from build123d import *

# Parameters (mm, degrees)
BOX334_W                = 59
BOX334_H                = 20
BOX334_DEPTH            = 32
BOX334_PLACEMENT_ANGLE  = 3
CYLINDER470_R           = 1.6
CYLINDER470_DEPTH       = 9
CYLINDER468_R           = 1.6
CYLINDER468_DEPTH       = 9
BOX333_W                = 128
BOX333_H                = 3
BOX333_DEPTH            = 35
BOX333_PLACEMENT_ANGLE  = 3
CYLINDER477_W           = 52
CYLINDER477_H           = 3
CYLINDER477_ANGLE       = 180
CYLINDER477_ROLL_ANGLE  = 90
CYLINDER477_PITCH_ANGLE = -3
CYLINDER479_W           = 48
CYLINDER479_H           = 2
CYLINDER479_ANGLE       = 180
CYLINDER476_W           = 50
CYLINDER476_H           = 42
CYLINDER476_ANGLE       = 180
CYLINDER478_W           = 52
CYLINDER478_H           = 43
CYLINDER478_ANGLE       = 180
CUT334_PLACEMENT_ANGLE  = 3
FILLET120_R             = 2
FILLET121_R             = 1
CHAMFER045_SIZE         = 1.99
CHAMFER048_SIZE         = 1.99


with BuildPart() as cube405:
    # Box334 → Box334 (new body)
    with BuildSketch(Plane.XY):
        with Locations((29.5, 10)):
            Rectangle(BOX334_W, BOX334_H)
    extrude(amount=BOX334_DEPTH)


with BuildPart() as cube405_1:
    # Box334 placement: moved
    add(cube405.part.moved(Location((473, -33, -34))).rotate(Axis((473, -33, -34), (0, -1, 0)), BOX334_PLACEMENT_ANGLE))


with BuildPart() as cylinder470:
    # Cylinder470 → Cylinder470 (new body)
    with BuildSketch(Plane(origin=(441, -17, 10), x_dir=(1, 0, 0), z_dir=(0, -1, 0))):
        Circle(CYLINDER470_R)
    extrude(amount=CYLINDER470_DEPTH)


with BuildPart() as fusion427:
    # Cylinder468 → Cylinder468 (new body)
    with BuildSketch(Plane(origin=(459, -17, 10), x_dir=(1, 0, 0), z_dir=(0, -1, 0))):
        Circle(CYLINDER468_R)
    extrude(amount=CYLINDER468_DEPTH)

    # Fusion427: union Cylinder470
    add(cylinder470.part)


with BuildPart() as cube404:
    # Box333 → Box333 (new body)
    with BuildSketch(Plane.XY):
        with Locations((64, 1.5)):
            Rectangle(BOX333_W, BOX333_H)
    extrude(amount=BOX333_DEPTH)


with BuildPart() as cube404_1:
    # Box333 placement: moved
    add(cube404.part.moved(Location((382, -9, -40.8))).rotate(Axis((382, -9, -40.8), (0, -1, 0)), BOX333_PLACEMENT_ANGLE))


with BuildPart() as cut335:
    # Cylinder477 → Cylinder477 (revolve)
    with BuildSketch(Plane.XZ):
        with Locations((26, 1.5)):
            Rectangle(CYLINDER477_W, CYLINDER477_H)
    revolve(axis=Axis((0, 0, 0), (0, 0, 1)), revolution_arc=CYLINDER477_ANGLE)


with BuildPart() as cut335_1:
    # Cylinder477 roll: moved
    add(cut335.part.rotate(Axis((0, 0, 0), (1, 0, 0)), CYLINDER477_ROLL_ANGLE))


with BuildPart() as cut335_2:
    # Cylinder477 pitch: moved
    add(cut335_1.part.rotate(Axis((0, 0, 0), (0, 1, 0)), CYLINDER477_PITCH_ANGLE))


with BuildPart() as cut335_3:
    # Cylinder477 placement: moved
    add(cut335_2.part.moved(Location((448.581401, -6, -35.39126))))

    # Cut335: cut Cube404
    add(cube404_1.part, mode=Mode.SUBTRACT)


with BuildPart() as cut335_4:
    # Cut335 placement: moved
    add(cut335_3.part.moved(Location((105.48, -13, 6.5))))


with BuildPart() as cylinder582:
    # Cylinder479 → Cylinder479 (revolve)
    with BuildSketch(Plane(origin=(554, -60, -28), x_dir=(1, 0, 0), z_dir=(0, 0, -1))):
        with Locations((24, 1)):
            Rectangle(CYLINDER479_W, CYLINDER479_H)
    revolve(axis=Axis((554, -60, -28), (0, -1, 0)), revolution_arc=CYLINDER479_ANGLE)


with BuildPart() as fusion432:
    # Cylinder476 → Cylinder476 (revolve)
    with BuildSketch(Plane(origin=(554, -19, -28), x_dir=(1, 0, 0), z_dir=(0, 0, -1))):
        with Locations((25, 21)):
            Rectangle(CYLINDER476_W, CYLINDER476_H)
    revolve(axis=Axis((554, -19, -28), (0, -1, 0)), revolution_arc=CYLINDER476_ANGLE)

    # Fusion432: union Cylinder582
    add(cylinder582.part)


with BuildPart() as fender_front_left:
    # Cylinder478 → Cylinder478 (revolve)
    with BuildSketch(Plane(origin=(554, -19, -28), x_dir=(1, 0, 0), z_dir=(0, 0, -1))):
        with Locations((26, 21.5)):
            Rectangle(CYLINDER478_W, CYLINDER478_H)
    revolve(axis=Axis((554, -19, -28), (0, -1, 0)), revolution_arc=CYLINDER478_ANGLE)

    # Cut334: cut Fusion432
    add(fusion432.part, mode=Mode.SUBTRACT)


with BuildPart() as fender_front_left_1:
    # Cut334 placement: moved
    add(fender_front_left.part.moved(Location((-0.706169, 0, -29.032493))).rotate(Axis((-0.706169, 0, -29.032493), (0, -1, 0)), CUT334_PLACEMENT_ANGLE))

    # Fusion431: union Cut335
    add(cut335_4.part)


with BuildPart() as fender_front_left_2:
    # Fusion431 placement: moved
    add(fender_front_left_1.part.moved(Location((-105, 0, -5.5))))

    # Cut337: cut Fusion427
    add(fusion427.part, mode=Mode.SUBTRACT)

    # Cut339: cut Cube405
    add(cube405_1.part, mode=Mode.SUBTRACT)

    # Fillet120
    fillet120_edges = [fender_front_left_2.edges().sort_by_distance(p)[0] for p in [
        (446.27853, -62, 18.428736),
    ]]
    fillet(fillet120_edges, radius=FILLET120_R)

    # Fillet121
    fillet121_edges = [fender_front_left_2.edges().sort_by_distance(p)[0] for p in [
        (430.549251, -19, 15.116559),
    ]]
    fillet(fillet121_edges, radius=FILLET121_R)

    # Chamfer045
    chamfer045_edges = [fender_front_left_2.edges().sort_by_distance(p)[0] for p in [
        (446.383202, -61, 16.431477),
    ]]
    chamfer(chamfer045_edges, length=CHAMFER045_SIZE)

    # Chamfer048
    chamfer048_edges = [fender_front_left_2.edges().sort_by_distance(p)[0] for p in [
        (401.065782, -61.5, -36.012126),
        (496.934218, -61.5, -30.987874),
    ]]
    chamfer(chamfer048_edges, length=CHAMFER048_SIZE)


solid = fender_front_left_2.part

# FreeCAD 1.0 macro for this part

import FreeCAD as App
import Part
import Sketcher

V = App.Vector
Q = App.Units.Quantity


def edges_at(feature, points):
    """Names of the edges that pass closest to the given points."""
    edges = feature.Shape.Edges
    near = lambda p: min(range(len(edges)), key=lambda i: edges[i].distToShape(Part.Vertex(*p))[0])
    return sorted({f"Edge{near(p) + 1}" for p in points})


def add_polygon(sketch, points):
    """Adds a closed chain of lines whose ends are joined by coincident constraints."""
    first, n = sketch.GeometryCount, len(points)
    for a, b in zip(points, points[1:] + points[:1]):
        sketch.addGeometry(Part.LineSegment(App.Vector(*a, 0), App.Vector(*b, 0)), False)
    for i in range(n):
        sketch.addConstraint(Sketcher.Constraint("Coincident", first + i, 2, first + (i + 1) % n, 1))

doc = App.newDocument("Part")
body = doc.addObject("PartDesign::Body", "Body")

# Sketch on XY plane
sketch1 = body.newObject("Sketcher::SketchObject", "Sketch")
sketch1.AttachmentSupport = (doc.getObject("XY_Plane"), [""])
sketch1.MapMode = "FlatFace"
add_polygon(sketch1, [(0, 20), (0, 0), (59, 0), (59, 20)])  # lines 0-3
sketch1.addConstraint([
    Sketcher.Constraint("Vertical", 0),
    Sketcher.Constraint("Horizontal", 1),
    Sketcher.Constraint("Vertical", 2),
    Sketcher.Constraint("Horizontal", 3),
    Sketcher.Constraint("Coincident", 0, 2, -1, 1),
    Sketcher.Constraint("DistanceX", 1, 1, 1, 2, Q("59 mm")),
    Sketcher.Constraint("DistanceY", 0, 2, 0, 1, Q("20 mm")),
])
pad1 = body.newObject("PartDesign::Pad", "Pad")
pad1.Profile = sketch1
pad1.Length = 32
body2 = doc.addObject("PartDesign::Body", "Body001")
doc.recompute()

body.Placement = App.Placement(V(473, -33, -34), App.Rotation(V(0, -1, 0), 3))
boolean = body2.newObject("PartDesign::Boolean", "Boolean")
boolean.Type = "Fuse"
boolean.addObjects([body])
body3 = doc.addObject("PartDesign::Body", "Body002")

# Sketch on XZ plane
sketch2 = body3.newObject("Sketcher::SketchObject", "Sketch001")
sketch2.AttachmentSupport = (doc.getObject("XZ_Plane002"), [""])
sketch2.MapMode = "FlatFace"
sketch2.AttachmentOffset = App.Placement(V(0, 0, 17), App.Rotation())
sketch2.addGeometry(Part.Circle(V(441, 10, 0), V(0, 0, 1), 1.6), False)
sketch2.addConstraint([
    Sketcher.Constraint("Diameter", 0, Q("3.2 mm")),
    Sketcher.Constraint("DistanceX", -1, 1, 0, 3, Q("441 mm")),
    Sketcher.Constraint("DistanceY", -1, 1, 0, 3, Q("10 mm")),
])
pad2 = body3.newObject("PartDesign::Pad", "Pad001")
pad2.Profile = sketch2
pad2.Length = 9
body4 = doc.addObject("PartDesign::Body", "Body003")
body4.AllowCompound = True

# Sketch on XZ plane
sketch3 = body4.newObject("Sketcher::SketchObject", "Sketch002")
sketch3.AttachmentSupport = (doc.getObject("XZ_Plane003"), [""])
sketch3.MapMode = "FlatFace"
sketch3.AttachmentOffset = App.Placement(V(0, 0, 17), App.Rotation())
sketch3.addGeometry(Part.Circle(V(459, 10, 0), V(0, 0, 1), 1.6), False)
sketch3.addConstraint([
    Sketcher.Constraint("Diameter", 0, Q("3.2 mm")),
    Sketcher.Constraint("DistanceX", -1, 1, 0, 3, Q("459 mm")),
    Sketcher.Constraint("DistanceY", -1, 1, 0, 3, Q("10 mm")),
])
pad3 = body4.newObject("PartDesign::Pad", "Pad002")
pad3.Profile = sketch3
pad3.Length = 9
doc.recompute()

boolean2 = body4.newObject("PartDesign::Boolean", "Boolean001")
boolean2.Type = "Fuse"
boolean2.addObjects([body3])
body5 = doc.addObject("PartDesign::Body", "Body004")

# Sketch on XY plane
sketch4 = body5.newObject("Sketcher::SketchObject", "Sketch003")
sketch4.AttachmentSupport = (doc.getObject("XY_Plane004"), [""])
sketch4.MapMode = "FlatFace"
add_polygon(sketch4, [(0, 3), (0, 0), (128, 0), (128, 3)])  # lines 0-3
sketch4.addConstraint([
    Sketcher.Constraint("Vertical", 0),
    Sketcher.Constraint("Horizontal", 1),
    Sketcher.Constraint("Vertical", 2),
    Sketcher.Constraint("Horizontal", 3),
    Sketcher.Constraint("Coincident", 0, 2, -1, 1),
    Sketcher.Constraint("DistanceX", 1, 1, 1, 2, Q("128 mm")),
    Sketcher.Constraint("DistanceY", 0, 2, 0, 1, Q("3 mm")),
])
pad4 = body5.newObject("PartDesign::Pad", "Pad003")
pad4.Profile = sketch4
pad4.Length = 35
body6 = doc.addObject("PartDesign::Body", "Body005")
doc.recompute()

body5.Placement = App.Placement(V(382, -9, -40.8), App.Rotation(V(0, -1, 0), 3))
boolean3 = body6.newObject("PartDesign::Boolean", "Boolean002")
boolean3.Type = "Fuse"
boolean3.addObjects([body5])
body7 = doc.addObject("PartDesign::Body", "Body006")

# Sketch on XZ plane
sketch5 = body7.newObject("Sketcher::SketchObject", "Sketch004")
sketch5.AttachmentSupport = (doc.getObject("XZ_Plane006"), [""])
sketch5.MapMode = "FlatFace"
add_polygon(sketch5, [(0, 3), (0, 0), (52, 0), (52, 3)])  # lines 0-3
sketch5.addConstraint([
    Sketcher.Constraint("Vertical", 0),
    Sketcher.Constraint("Horizontal", 1),
    Sketcher.Constraint("Vertical", 2),
    Sketcher.Constraint("Horizontal", 3),
    Sketcher.Constraint("Coincident", 0, 2, -1, 1),
    Sketcher.Constraint("DistanceX", 1, 1, 1, 2, Q("52 mm")),
    Sketcher.Constraint("DistanceY", 0, 2, 0, 1, Q("3 mm")),
])
revolution = body7.newObject("PartDesign::Revolution", "Revolution")
revolution.Profile = sketch5
revolution.ReferenceAxis = (sketch5, ["V_Axis"])
revolution.Angle = 180
body8 = doc.addObject("PartDesign::Body", "Body007")
doc.recompute()

body7.Placement = App.Placement(V(0, 0, 0), App.Rotation(V(1, 0, 0), 90))
boolean4 = body8.newObject("PartDesign::Boolean", "Boolean003")
boolean4.Type = "Fuse"
boolean4.addObjects([body7])
body9 = doc.addObject("PartDesign::Body", "Body008")
doc.recompute()

body8.Placement = App.Placement(V(0, 0, 0), App.Rotation(V(0, 1, 0), 357))
boolean5 = body9.newObject("PartDesign::Boolean", "Boolean004")
boolean5.Type = "Fuse"
boolean5.addObjects([body8])
body10 = doc.addObject("PartDesign::Body", "Body009")
doc.recompute()

body9.Placement = App.Placement(V(448.581401, -6, -35.39126), App.Rotation(V(0, 0, 1), 0))
boolean6 = body10.newObject("PartDesign::Boolean", "Boolean005")
boolean6.Type = "Fuse"
boolean6.addObjects([body9])
doc.recompute()

boolean7 = body10.newObject("PartDesign::Boolean", "Boolean006")
boolean7.Type = "Cut"
boolean7.addObjects([body6])
body11 = doc.addObject("PartDesign::Body", "Body010")
doc.recompute()

body10.Placement = App.Placement(V(105.48, -13, 6.5), App.Rotation(V(0, 0, 1), 0))
boolean8 = body11.newObject("PartDesign::Boolean", "Boolean007")
boolean8.Type = "Fuse"
boolean8.addObjects([body10])
body12 = doc.addObject("PartDesign::Body", "Body011")

# Sketch on XY plane
sketch6 = body12.newObject("Sketcher::SketchObject", "Sketch005")
sketch6.AttachmentSupport = (doc.getObject("XY_Plane011"), [""])
sketch6.MapMode = "FlatFace"
sketch6.AttachmentOffset = App.Placement(V(0, 0, -28), App.Rotation())
add_polygon(sketch6, [(554, -62), (554, -60), (602, -60), (602, -62)])  # lines 0-3
sketch6.addGeometry(Part.LineSegment(V(554, -60, 0), V(554, -62, 0)), True)  # axis
sketch6.addConstraint([
    Sketcher.Constraint("Vertical", 0),
    Sketcher.Constraint("Horizontal", 1),
    Sketcher.Constraint("Vertical", 2),
    Sketcher.Constraint("Horizontal", 3),
    Sketcher.Constraint("Vertical", 4),
    Sketcher.Constraint("Coincident", 4, 1, 0, 2),
    Sketcher.Constraint("Horizontal", 2, 2, 4, 2),
    Sketcher.Constraint("DistanceX", 1, 1, 1, 2, Q("48 mm")),
    Sketcher.Constraint("DistanceY", 0, 1, 0, 2, Q("2 mm")),
    Sketcher.Constraint("DistanceX", -1, 1, 0, 2, Q("554 mm")),
    Sketcher.Constraint("DistanceY", 0, 2, -1, 1, Q("60 mm")),
])
revolution2 = body12.newObject("PartDesign::Revolution", "Revolution001")
revolution2.Profile = sketch6
revolution2.ReferenceAxis = (sketch6, ["Axis0"])
revolution2.Angle = 180
body13 = doc.addObject("PartDesign::Body", "Body012")

# Sketch on XY plane
sketch7 = body13.newObject("Sketcher::SketchObject", "Sketch006")
sketch7.AttachmentSupport = (doc.getObject("XY_Plane012"), [""])
sketch7.MapMode = "FlatFace"
sketch7.AttachmentOffset = App.Placement(V(0, 0, -28), App.Rotation())
add_polygon(sketch7, [(554, -61), (554, -19), (604, -19), (604, -61)])  # lines 0-3
sketch7.addGeometry(Part.LineSegment(V(554, -19, 0), V(554, -61, 0)), True)  # axis
sketch7.addConstraint([
    Sketcher.Constraint("Vertical", 0),
    Sketcher.Constraint("Horizontal", 1),
    Sketcher.Constraint("Vertical", 2),
    Sketcher.Constraint("Horizontal", 3),
    Sketcher.Constraint("Vertical", 4),
    Sketcher.Constraint("Coincident", 4, 1, 0, 2),
    Sketcher.Constraint("Horizontal", 2, 2, 4, 2),
    Sketcher.Constraint("DistanceX", 1, 1, 1, 2, Q("50 mm")),
    Sketcher.Constraint("DistanceY", 0, 1, 0, 2, Q("42 mm")),
    Sketcher.Constraint("DistanceX", -1, 1, 0, 2, Q("554 mm")),
    Sketcher.Constraint("DistanceY", 0, 2, -1, 1, Q("19 mm")),
])
revolution3 = body13.newObject("PartDesign::Revolution", "Revolution002")
revolution3.Profile = sketch7
revolution3.ReferenceAxis = (sketch7, ["Axis0"])
revolution3.Angle = 180
doc.recompute()

boolean9 = body13.newObject("PartDesign::Boolean", "Boolean008")
boolean9.Type = "Fuse"
boolean9.addObjects([body12])
body14 = doc.addObject("PartDesign::Body", "Body013")

# Sketch on XY plane
sketch8 = body14.newObject("Sketcher::SketchObject", "Sketch007")
sketch8.AttachmentSupport = (doc.getObject("XY_Plane013"), [""])
sketch8.MapMode = "FlatFace"
sketch8.AttachmentOffset = App.Placement(V(0, 0, -28), App.Rotation())
add_polygon(sketch8, [(554, -62), (554, -19), (606, -19), (606, -62)])  # lines 0-3
sketch8.addGeometry(Part.LineSegment(V(554, -19, 0), V(554, -62, 0)), True)  # axis
sketch8.addConstraint([
    Sketcher.Constraint("Vertical", 0),
    Sketcher.Constraint("Horizontal", 1),
    Sketcher.Constraint("Vertical", 2),
    Sketcher.Constraint("Horizontal", 3),
    Sketcher.Constraint("Vertical", 4),
    Sketcher.Constraint("Coincident", 4, 1, 0, 2),
    Sketcher.Constraint("Horizontal", 2, 2, 4, 2),
    Sketcher.Constraint("DistanceX", 1, 1, 1, 2, Q("52 mm")),
    Sketcher.Constraint("DistanceY", 0, 1, 0, 2, Q("43 mm")),
    Sketcher.Constraint("DistanceX", -1, 1, 0, 2, Q("554 mm")),
    Sketcher.Constraint("DistanceY", 0, 2, -1, 1, Q("19 mm")),
])
revolution4 = body14.newObject("PartDesign::Revolution", "Revolution003")
revolution4.Profile = sketch8
revolution4.ReferenceAxis = (sketch8, ["Axis0"])
revolution4.Angle = 180
doc.recompute()

boolean10 = body14.newObject("PartDesign::Boolean", "Boolean009")
boolean10.Type = "Cut"
boolean10.addObjects([body13])
body15 = doc.addObject("PartDesign::Body", "Body014")
doc.recompute()

body14.Placement = App.Placement(V(-0.706169, 0, -29.032493), App.Rotation(V(0, -1, 0), 3))
boolean11 = body15.newObject("PartDesign::Boolean", "Boolean010")
boolean11.Type = "Fuse"
boolean11.addObjects([body14])
doc.recompute()

boolean12 = body15.newObject("PartDesign::Boolean", "Boolean011")
boolean12.Type = "Fuse"
boolean12.addObjects([body11])
body16 = doc.addObject("PartDesign::Body", "Body015")
doc.recompute()

body15.Placement = App.Placement(V(-105, 0, -5.5), App.Rotation(V(0, 0, 1), 0))
boolean13 = body16.newObject("PartDesign::Boolean", "Boolean012")
boolean13.Type = "Fuse"
boolean13.addObjects([body15])
doc.recompute()

boolean14 = body16.newObject("PartDesign::Boolean", "Boolean013")
boolean14.Type = "Cut"
boolean14.addObjects([body4])
doc.recompute()

boolean15 = body16.newObject("PartDesign::Boolean", "Boolean014")
boolean15.Type = "Cut"
boolean15.addObjects([body2])
doc.recompute()

fillet = body16.newObject("PartDesign::Fillet", "Fillet")
fillet.Base = (boolean15, edges_at(boolean15, [(446.279, -62, 18.429)]))
fillet.Radius = 2
doc.recompute()

fillet2 = body16.newObject("PartDesign::Fillet", "Fillet001")
fillet2.Base = (fillet, edges_at(fillet, [(430.549, -19, 15.117)]))
fillet2.Radius = 1
doc.recompute()

chamfer = body16.newObject("PartDesign::Chamfer", "Chamfer")
chamfer.Base = (fillet2, edges_at(fillet2, [(446.383, -61, 16.431)]))
chamfer.Size = 1.99
doc.recompute()

chamfer2 = body16.newObject("PartDesign::Chamfer", "Chamfer001")
chamfer2.Base = (chamfer, edges_at(chamfer, [(401.066, -61.5, -36.012), (496.934, -61.5, -30.988)]))
chamfer2.Size = 1.99

doc.recompute()
